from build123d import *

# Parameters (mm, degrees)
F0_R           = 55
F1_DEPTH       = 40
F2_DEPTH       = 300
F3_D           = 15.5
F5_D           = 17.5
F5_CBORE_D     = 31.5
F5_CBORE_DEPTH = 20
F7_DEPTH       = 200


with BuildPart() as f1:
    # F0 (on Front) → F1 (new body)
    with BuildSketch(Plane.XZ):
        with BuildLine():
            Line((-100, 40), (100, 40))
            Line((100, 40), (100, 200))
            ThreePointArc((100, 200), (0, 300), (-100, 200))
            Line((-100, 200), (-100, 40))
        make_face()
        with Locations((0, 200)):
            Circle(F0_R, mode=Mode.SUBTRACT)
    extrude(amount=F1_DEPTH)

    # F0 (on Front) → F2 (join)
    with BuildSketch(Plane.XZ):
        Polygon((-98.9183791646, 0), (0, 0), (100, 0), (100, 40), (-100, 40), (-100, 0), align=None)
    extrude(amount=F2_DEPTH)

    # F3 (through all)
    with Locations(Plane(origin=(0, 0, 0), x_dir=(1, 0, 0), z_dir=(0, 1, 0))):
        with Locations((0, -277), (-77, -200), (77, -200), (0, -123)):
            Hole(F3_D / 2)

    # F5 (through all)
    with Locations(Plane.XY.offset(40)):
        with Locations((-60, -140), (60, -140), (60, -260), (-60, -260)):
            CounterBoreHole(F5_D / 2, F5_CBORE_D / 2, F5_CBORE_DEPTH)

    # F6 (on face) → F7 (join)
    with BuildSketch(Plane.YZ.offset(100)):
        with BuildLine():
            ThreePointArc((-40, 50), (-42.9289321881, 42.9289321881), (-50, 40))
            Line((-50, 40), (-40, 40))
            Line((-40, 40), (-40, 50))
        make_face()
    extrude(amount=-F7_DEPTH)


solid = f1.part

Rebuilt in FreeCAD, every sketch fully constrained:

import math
import FreeCAD as App
import Part
import Sketcher

V = App.Vector

doc = App.newDocument("Part")
body = doc.addObject("PartDesign::Body", "Body")

# Sketch on XZ plane
sketch1 = body.newObject("Sketcher::SketchObject", "Sketch")
sketch1.AttachmentSupport = (doc.getObject("XZ_Plane"), [""])
sketch1.MapMode = "FlatFace"
sketch1.addGeometry([
    Part.LineSegment(V(-100, 40, 0), V(100, 40, 0)),  # 0
    Part.LineSegment(V(100, 40, 0), V(100, 200, 0)),  # 1
    Part.ArcOfCircle(Part.Circle(V(0, 200, 0), V(0, 0, 1), 100), math.radians(0), math.radians(180)),  # 2
    Part.LineSegment(V(-100, 200, 0), V(-100, 40, 0)),  # 3
    Part.Circle(V(0, 200, 0), V(0, 0, 1), 55),  # 4
], False)
sketch1.addConstraint([
    Sketcher.Constraint("Coincident", 0, 2, 1, 1),
    Sketcher.Constraint("Tangent", 1, 2, 2, 1),
    Sketcher.Constraint("Tangent", 2, 2, 3, 1),
    Sketcher.Constraint("Coincident", 3, 2, 0, 1),
    Sketcher.Constraint("Horizontal", 0),
    Sketcher.Constraint("Vertical", 1),
    Sketcher.Constraint("Vertical", 3),
    Sketcher.Constraint("Coincident", 4, 3, 2, 3),
    Sketcher.Constraint("PointOnObject", 2, 3, -2),
    Sketcher.Constraint("Diameter", 4, 110.0),
    Sketcher.Constraint("Radius", 2, 100.0),
    Sketcher.Constraint("DistanceY", 1, 1, 1, 2, 160.0),
    Sketcher.Constraint("DistanceY", -1, 1, 2, 3, 200.0),
])
pad1 = body.newObject("PartDesign::Pad", "Pad")
pad1.Profile = sketch1
pad1.Length = 40

# Sketch on XZ plane
sketch2 = body.newObject("Sketcher::SketchObject", "Sketch001")
sketch2.AttachmentSupport = (doc.getObject("XZ_Plane"), [""])
sketch2.MapMode = "FlatFace"
sketch2.addGeometry([
    Part.LineSegment(V(100, 0, 0), V(100, 40, 0)),
    Part.LineSegment(V(100, 40, 0), V(-100, 40, 0)),
    Part.LineSegment(V(-100, 40, 0), V(-100, 0, 0)),
    Part.LineSegment(V(-100, 0, 0), V(100, 0, 0)),
], False)
sketch2.addConstraint([
    Sketcher.Constraint("Coincident", 0, 2, 1, 1),
    Sketcher.Constraint("Coincident", 1, 2, 2, 1),
    Sketcher.Constraint("Coincident", 2, 2, 3, 1),
    Sketcher.Constraint("Coincident", 3, 2, 0, 1),
    Sketcher.Constraint("Vertical", 0),
    Sketcher.Constraint("Horizontal", 1),
    Sketcher.Constraint("Vertical", 2),
    Sketcher.Constraint("Horizontal", 3),
    Sketcher.Constraint("Symmetric", 2, 2, 3, 2, -1, 1),
    Sketcher.Constraint("DistanceX", 1, 2, 1, 1, 200.0),
    Sketcher.Constraint("DistanceY", 0, 1, 0, 2, 40.0),
])
pad2 = body.newObject("PartDesign::Pad", "Pad001")
pad2.Profile = sketch2
pad2.Length = 300

# Sketch on XZ plane
sketch3 = body.newObject("Sketcher::SketchObject", "Sketch002")
sketch3.AttachmentSupport = (doc.getObject("XZ_Plane"), [""])
sketch3.MapMode = "FlatFace"
sketch3.addGeometry([
    Part.Circle(V(0, 277, 0), V(0, 0, 1), 8),
    Part.Circle(V(-77, 200, 0), V(0, 0, 1), 8),
    Part.Circle(V(77, 200, 0), V(0, 0, 1), 8),
    Part.Circle(V(0, 123, 0), V(0, 0, 1), 8),
], False)
sketch3.addConstraint([
    Sketcher.Constraint("Equal", 0, 1),
    Sketcher.Constraint("Equal", 1, 2),
    Sketcher.Constraint("Equal", 2, 3),
    Sketcher.Constraint("Symmetric", 1, 3, 2, 3, -2),
    Sketcher.Constraint("PointOnObject", 0, 3, -2),
    Sketcher.Constraint("PointOnObject", 3, 3, -2),
    Sketcher.Constraint("Diameter", 0, 15.5),
    Sketcher.Constraint("DistanceY", -1, 1, 0, 3, 277.0),
    Sketcher.Constraint("DistanceX", 1, 3, -1, 1, 77.0),
    Sketcher.Constraint("DistanceY", -1, 1, 1, 3, 200.0),
    Sketcher.Constraint("DistanceY", -1, 1, 3, 3, 123.0),
])
doc.recompute()
hole = body.newObject("PartDesign::Hole", "Hole")
hole.Profile = sketch3
hole.ThreadType = "None"
hole.Diameter = 15.5
hole.DepthType = "ThroughAll"
hole.Reversed = True

# Sketch on XY plane
sketch4 = body.newObject("Sketcher::SketchObject", "Sketch003")
sketch4.AttachmentSupport = (doc.getObject("XY_Plane"), [""])
sketch4.MapMode = "FlatFace"
sketch4.AttachmentOffset = App.Placement(V(0, 0, 40), App.Rotation())
sketch4.addGeometry([
    Part.Circle(V(-60, -140, 0), V(0, 0, 1), 9),
    Part.Circle(V(60, -140, 0), V(0, 0, 1), 9),
    Part.Circle(V(60, -260, 0), V(0, 0, 1), 9),
    Part.Circle(V(-60, -260, 0), V(0, 0, 1), 9),
], False)
sketch4.addConstraint([
    Sketcher.Constraint("Equal", 0, 1),
    Sketcher.Constraint("Equal", 1, 2),
    Sketcher.Constraint("Equal", 2, 3),
    Sketcher.Constraint("Symmetric", 0, 3, 1, 3, -2),
    Sketcher.Constraint("Symmetric", 2, 3, 3, 3, -2),
    Sketcher.Constraint("Vertical", 1, 3, 2, 3),
    Sketcher.Constraint("Diameter", 0, 17.5),
    Sketcher.Constraint("DistanceX", 0, 3, -1, 1, 60.0),
    Sketcher.Constraint("DistanceY", 0, 3, -1, 1, 140.0),
    Sketcher.Constraint("DistanceY", 2, 3, -1, 1, 260.0),
])
doc.recompute()
hole2 = body.newObject("PartDesign::Hole", "Hole001")
hole2.Profile = sketch4
hole2.ThreadType = "None"
hole2.Diameter = 17.5
hole2.DepthType = "ThroughAll"
hole2.HoleCutType = "Counterbore"
hole2.HoleCutDiameter = 31.5
hole2.HoleCutDepth = 20

# Sketch on YZ plane
sketch5 = body.newObject("Sketcher::SketchObject", "Sketch004")
sketch5.AttachmentSupport = (doc.getObject("YZ_Plane"), [""])
sketch5.MapMode = "FlatFace"
sketch5.AttachmentOffset = App.Placement(V(0, 0, 100), App.Rotation())
sketch5.addGeometry([
    Part.ArcOfCircle(Part.Circle(V(-50, 50, 0), V(0, 0, 1), 10), math.radians(-90), math.radians(0)),
    Part.LineSegment(V(-50, 40, 0), V(-40, 40, 0)),
    Part.LineSegment(V(-40, 40, 0), V(-40, 50, 0)),
], False)
sketch5.addConstraint([
    Sketcher.Constraint("Tangent", 0, 1, 1, 1),
    Sketcher.Constraint("Coincident", 1, 2, 2, 1),
    Sketcher.Constraint("Tangent", 2, 2, 0, 2),
    Sketcher.Constraint("Horizontal", 1),
    Sketcher.Constraint("Vertical", 2),
    Sketcher.Constraint("Radius", 0, 10.0),
    Sketcher.Constraint("DistanceX", 0, 3, -1, 1, 50.0),
    Sketcher.Constraint("DistanceY", -1, 1, 0, 3, 50.0),
])
pad3 = body.newObject("PartDesign::Pad", "Pad002")
pad3.Profile = sketch5
pad3.Length = 200
pad3.Reversed = True

doc.recompute()
